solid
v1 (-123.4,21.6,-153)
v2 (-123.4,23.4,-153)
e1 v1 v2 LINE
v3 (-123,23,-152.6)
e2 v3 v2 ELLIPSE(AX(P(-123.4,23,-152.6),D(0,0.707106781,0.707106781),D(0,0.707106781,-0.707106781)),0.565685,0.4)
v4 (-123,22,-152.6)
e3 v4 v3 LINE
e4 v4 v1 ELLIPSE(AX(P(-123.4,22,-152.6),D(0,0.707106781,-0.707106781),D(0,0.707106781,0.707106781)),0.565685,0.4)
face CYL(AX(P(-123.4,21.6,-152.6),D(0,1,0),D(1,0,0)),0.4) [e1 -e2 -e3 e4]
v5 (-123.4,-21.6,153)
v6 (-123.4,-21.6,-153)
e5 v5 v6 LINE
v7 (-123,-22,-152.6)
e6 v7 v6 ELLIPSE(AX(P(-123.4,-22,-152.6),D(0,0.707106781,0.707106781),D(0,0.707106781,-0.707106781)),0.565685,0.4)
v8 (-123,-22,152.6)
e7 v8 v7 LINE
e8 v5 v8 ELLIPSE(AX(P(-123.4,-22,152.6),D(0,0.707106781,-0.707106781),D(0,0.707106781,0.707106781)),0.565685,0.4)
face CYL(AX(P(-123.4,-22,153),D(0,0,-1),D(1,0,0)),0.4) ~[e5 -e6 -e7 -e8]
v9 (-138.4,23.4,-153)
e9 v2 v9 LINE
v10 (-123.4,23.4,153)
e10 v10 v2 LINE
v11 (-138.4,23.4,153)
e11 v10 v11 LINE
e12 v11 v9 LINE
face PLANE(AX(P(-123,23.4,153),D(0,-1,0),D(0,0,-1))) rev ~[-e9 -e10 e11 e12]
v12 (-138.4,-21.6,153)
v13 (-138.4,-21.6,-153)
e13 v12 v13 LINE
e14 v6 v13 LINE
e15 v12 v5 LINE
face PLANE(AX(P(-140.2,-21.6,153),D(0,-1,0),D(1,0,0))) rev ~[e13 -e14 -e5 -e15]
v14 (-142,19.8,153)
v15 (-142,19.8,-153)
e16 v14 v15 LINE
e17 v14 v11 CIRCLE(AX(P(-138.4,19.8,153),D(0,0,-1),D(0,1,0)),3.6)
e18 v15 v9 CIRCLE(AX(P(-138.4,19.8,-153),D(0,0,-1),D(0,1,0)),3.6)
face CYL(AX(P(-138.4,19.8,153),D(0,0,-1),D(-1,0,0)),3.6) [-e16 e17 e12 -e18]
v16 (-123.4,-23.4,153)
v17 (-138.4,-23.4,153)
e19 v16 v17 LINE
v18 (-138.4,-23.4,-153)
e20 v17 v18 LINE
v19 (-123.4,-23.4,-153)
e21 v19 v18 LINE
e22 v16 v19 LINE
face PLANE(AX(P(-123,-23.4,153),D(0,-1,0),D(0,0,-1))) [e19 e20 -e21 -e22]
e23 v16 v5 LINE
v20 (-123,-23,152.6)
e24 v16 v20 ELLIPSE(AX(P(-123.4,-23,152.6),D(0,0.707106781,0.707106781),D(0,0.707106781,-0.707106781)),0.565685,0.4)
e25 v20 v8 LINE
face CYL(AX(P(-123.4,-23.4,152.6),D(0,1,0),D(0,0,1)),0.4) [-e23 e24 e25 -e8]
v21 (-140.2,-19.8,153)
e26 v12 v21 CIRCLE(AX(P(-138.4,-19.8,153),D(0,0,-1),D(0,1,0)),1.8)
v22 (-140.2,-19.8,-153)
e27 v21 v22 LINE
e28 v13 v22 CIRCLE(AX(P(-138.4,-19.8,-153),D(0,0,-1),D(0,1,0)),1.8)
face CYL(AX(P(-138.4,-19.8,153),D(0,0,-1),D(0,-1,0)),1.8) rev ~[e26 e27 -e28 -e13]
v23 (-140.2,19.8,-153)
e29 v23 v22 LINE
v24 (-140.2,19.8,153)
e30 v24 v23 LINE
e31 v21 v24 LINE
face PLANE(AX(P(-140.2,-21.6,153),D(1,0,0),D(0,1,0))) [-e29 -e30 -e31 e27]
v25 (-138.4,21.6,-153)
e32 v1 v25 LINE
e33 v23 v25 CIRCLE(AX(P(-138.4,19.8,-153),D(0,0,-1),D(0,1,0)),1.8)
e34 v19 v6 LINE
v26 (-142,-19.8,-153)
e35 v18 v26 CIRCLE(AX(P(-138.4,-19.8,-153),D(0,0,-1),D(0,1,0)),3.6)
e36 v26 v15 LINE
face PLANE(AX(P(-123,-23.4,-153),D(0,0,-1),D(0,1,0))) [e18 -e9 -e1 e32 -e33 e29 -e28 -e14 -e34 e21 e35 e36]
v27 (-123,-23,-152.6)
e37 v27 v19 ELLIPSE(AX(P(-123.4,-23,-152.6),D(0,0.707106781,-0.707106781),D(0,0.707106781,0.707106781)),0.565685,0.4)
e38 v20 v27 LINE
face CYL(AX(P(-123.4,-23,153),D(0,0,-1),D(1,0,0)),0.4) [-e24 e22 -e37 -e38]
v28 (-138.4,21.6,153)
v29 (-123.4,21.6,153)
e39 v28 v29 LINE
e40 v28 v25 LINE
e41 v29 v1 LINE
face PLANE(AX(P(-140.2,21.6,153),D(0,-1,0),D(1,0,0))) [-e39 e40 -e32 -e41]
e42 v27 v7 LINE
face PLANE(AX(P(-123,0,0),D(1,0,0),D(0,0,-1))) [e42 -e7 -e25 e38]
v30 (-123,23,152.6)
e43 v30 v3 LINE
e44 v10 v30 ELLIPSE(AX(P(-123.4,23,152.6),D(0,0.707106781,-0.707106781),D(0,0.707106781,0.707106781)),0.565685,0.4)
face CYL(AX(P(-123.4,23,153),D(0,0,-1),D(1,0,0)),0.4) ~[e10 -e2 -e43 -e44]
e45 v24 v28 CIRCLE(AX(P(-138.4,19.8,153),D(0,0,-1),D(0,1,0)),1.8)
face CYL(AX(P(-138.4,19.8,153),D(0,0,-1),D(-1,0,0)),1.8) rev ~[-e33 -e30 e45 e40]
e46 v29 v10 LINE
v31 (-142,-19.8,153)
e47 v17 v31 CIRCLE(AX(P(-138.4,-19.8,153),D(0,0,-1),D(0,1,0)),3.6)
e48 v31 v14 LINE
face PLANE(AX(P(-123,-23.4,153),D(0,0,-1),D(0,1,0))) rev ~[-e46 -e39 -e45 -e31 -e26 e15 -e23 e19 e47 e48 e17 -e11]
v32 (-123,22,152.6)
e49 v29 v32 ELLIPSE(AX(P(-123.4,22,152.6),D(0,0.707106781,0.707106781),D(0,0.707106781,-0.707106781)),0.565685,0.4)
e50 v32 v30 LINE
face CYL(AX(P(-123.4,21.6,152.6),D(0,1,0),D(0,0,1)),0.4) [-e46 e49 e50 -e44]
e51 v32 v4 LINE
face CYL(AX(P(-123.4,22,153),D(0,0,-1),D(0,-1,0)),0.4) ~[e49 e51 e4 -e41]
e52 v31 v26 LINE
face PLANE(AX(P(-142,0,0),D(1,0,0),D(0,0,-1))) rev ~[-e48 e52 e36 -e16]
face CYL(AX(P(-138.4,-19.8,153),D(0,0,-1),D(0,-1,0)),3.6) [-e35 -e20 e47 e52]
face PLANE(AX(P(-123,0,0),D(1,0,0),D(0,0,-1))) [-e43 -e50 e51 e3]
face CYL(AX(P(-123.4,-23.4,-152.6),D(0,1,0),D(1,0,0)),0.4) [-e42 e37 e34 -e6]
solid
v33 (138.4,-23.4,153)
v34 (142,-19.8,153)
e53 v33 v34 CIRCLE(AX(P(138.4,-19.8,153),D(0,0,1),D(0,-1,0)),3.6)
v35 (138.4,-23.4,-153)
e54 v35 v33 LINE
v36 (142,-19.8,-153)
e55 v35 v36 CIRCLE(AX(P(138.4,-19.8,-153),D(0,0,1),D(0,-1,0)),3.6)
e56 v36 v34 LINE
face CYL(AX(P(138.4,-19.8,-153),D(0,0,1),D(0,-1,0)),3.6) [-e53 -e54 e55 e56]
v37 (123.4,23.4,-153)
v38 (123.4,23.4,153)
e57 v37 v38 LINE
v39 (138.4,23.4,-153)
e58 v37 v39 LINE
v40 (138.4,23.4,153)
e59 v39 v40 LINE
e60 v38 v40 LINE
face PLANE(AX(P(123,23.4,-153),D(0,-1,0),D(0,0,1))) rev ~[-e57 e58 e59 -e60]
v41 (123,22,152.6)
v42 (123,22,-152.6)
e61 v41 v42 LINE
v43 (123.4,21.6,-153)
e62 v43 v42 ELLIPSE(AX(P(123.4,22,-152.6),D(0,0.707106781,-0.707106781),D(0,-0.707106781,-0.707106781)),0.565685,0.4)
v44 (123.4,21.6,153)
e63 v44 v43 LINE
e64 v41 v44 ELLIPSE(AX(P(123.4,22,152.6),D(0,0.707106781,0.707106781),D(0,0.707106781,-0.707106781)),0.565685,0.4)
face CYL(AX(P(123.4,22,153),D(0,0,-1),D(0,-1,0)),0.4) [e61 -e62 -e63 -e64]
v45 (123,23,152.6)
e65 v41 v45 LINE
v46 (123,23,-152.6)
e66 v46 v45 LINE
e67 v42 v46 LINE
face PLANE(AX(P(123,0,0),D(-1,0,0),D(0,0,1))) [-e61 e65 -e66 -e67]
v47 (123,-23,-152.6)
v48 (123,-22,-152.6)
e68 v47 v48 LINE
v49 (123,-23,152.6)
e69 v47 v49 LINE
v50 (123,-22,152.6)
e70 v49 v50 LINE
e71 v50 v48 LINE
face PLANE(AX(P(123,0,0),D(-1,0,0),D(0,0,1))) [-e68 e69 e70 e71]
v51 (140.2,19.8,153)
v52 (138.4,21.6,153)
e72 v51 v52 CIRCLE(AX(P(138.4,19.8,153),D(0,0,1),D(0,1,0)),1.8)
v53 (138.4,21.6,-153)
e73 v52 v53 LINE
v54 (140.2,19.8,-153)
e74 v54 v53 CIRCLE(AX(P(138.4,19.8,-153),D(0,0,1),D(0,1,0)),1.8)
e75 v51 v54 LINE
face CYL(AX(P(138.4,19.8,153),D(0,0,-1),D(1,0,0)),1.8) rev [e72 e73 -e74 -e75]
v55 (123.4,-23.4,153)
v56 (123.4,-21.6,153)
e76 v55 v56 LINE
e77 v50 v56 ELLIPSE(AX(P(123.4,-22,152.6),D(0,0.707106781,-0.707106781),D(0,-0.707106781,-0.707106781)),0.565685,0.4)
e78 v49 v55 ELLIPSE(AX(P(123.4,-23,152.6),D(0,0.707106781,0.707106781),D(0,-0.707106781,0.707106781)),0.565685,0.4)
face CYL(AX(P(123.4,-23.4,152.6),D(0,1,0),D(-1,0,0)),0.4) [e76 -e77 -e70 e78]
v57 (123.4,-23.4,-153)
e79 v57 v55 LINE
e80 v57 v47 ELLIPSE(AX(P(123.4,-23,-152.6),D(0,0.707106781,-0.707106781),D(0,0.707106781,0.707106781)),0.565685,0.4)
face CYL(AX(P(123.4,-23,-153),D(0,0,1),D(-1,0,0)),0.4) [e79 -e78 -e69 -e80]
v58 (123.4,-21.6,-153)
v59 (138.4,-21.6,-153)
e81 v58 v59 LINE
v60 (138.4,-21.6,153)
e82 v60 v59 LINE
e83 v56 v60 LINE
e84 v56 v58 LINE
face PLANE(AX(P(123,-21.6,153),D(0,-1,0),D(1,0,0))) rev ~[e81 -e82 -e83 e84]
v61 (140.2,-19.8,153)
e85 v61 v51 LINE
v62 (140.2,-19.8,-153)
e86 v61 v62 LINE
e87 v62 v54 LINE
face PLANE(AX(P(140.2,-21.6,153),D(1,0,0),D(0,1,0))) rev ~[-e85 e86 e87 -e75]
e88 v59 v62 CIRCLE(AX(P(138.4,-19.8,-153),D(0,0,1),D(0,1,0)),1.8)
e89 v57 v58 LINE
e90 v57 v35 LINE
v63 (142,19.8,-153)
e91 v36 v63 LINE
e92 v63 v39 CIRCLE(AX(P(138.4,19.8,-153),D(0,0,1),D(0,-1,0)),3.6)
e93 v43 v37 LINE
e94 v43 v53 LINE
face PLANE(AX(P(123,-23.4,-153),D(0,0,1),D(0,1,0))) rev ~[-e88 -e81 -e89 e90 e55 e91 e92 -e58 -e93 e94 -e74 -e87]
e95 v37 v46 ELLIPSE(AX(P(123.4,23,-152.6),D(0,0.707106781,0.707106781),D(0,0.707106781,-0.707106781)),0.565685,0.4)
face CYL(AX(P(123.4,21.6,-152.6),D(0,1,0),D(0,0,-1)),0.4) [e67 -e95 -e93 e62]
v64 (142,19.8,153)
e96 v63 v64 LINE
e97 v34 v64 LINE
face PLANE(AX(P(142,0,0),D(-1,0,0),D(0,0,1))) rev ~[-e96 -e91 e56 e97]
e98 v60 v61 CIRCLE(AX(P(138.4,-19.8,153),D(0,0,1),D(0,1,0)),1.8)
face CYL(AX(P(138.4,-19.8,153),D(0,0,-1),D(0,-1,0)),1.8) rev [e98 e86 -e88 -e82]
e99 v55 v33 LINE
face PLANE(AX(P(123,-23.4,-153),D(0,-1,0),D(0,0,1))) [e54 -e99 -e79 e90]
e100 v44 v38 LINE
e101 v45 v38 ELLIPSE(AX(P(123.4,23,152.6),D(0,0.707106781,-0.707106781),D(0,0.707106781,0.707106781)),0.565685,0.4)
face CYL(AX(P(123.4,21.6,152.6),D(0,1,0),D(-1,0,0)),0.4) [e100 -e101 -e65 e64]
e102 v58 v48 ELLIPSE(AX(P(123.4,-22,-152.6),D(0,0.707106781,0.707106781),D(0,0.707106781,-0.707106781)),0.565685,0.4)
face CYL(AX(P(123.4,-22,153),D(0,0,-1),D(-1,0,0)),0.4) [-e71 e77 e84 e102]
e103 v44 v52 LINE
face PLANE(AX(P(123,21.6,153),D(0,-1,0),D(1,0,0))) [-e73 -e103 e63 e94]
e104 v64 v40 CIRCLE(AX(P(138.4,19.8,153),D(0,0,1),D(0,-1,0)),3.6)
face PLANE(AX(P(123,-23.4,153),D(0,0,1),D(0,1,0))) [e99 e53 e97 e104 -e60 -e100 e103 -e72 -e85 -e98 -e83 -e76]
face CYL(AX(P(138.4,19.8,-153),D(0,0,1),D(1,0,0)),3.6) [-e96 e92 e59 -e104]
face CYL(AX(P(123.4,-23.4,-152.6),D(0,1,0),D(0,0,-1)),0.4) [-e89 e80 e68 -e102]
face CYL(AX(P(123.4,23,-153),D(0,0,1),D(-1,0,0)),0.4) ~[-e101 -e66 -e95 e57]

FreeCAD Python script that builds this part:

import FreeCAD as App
import Part
import Sketcher

V = App.Vector
Q = App.Units.Quantity


def edges_at(feature, points):
    """Names of the edges that pass closest to the given points."""
    edges = feature.Shape.Edges
    near = lambda p: min(range(len(edges)), key=lambda i: edges[i].distToShape(Part.Vertex(*p))[0])
    return sorted({f"Edge{near(p) + 1}" for p in points})

doc = App.newDocument("Part")
params = doc.addObject("Spreadsheet::Sheet", "Params")
for row, (alias, value) in enumerate([
    ("sketch1_height", "306 mm"),
    ("sketch1_width", "46.8 mm"),
    ("pad1_length", "19 mm"),
    ("sketch2_width", "17.2 mm"),
    ("sketch2_height", "43.2 mm"),
    ("fillet_radius", "0.4 mm"),
    ("fillet2_radius", "1.8 mm"),
    ("fillet3_radius", "3.6 mm"),
    ("sketch3_height", "306 mm"),
    ("sketch3_width", "46.8 mm"),
    ("pad2_length", "19 mm"),
    ("sketch4_width", "17.2 mm"),
    ("sketch4_height", "43.2 mm"),
    ("fillet4_radius", "0.4 mm"),
    ("fillet5_radius", "1.8 mm"),
    ("fillet6_radius", "3.6 mm"),
], start=1):
    params.set(f"A{row}", alias)
    params.set(f"B{row}", "=" + value)
    params.setAlias(f"B{row}", alias)

body = doc.addObject("PartDesign::Body", "Body")

# Sketch on YZ plane
sketch1 = body.newObject("Sketcher::SketchObject", "Sketch")
sketch1.AttachmentSupport = (doc.getObject("YZ_Plane"), [""])
sketch1.MapMode = "FlatFace"
sketch1.AttachmentOffset = App.Placement(V(0, 0, 123), App.Rotation())
sketch1.addGeometry(Part.LineSegment(V(23, -153, 0), V(-23, -153, 0)), False)
sketch1.addGeometry(Part.LineSegment(V(-23, -153, 0), V(-23, 153, 0)), False)
sketch1.addGeometry(Part.LineSegment(V(-23, 153, 0), V(23, 153, 0)), False)
sketch1.addGeometry(Part.LineSegment(V(23, 153, 0), V(23, -153, 0)), False)
sketch1.addConstraint(Sketcher.Constraint("Coincident", 0, 2, 1, 1))
sketch1.addConstraint(Sketcher.Constraint("Coincident", 1, 2, 2, 1))
sketch1.addConstraint(Sketcher.Constraint("Coincident", 2, 2, 3, 1))
sketch1.addConstraint(Sketcher.Constraint("Coincident", 3, 2, 0, 1))
sketch1.addConstraint(Sketcher.Constraint("Horizontal", 0))
sketch1.addConstraint(Sketcher.Constraint("Vertical", 1))
sketch1.addConstraint(Sketcher.Constraint("Horizontal", 2))
sketch1.addConstraint(Sketcher.Constraint("Vertical", 3))
sketch1.addConstraint(Sketcher.Constraint("Symmetric", 0, 2, 2, 2, -1, 1))
sketch1.addConstraint(Sketcher.Constraint("DistanceY", 1, 1, 1, 2, Q("306 mm")))
sketch1.addConstraint(Sketcher.Constraint("DistanceX", 0, 2, 0, 1, Q("46.8 mm")))
sketch1.setExpression("Constraints[9]", "Params.sketch1_height")
sketch1.setExpression("Constraints[10]", "Params.sketch1_width")
pad1 = body.newObject("PartDesign::Pad", "Pad")
pad1.Profile = sketch1
pad1.setExpression("Length", "Params.pad1_length")

# Sketch on XY plane
sketch2 = body.newObject("Sketcher::SketchObject", "Sketch001")
sketch2.AttachmentSupport = (doc.getObject("XY_Plane"), [""])
sketch2.MapMode = "FlatFace"
sketch2.AttachmentOffset = App.Placement(V(0, 0, 153), App.Rotation())
sketch2.addGeometry(Part.LineSegment(V(123, 22, 0), V(123, -22, 0)), False)
sketch2.addGeometry(Part.LineSegment(V(123, -22, 0), V(140, -22, 0)), False)
sketch2.addGeometry(Part.LineSegment(V(140, -22, 0), V(140, 22, 0)), False)
sketch2.addGeometry(Part.LineSegment(V(140, 22, 0), V(123, 22, 0)), False)
sketch2.addConstraint(Sketcher.Constraint("Coincident", 0, 2, 1, 1))
sketch2.addConstraint(Sketcher.Constraint("Coincident", 1, 2, 2, 1))
sketch2.addConstraint(Sketcher.Constraint("Coincident", 2, 2, 3, 1))
sketch2.addConstraint(Sketcher.Constraint("Coincident", 3, 2, 0, 1))
sketch2.addConstraint(Sketcher.Constraint("Vertical", 0))
sketch2.addConstraint(Sketcher.Constraint("Horizontal", 1))
sketch2.addConstraint(Sketcher.Constraint("Vertical", 2))
sketch2.addConstraint(Sketcher.Constraint("Horizontal", 3))
sketch2.addConstraint(Sketcher.Constraint("DistanceX", 1, 1, 1, 2, Q("17.2 mm")))
sketch2.addConstraint(Sketcher.Constraint("DistanceY", 0, 2, 0, 1, Q("43.2 mm")))
sketch2.addConstraint(Sketcher.Constraint("DistanceX", -1, 1, 0, 2, Q("123 mm")))
sketch2.addConstraint(Sketcher.Constraint("DistanceY", 0, 2, -1, 1, Q("21.6 mm")))
sketch2.setExpression("Constraints[8]", "Params.sketch2_width")
sketch2.setExpression("Constraints[9]", "Params.sketch2_height")
pocket1 = body.newObject("PartDesign::Pocket", "Pocket")
pocket1.Profile = sketch2
pocket1.Type = "ThroughAll"
doc.recompute()

fillet = body.newObject("PartDesign::Fillet", "Fillet")
fillet.Base = (pocket1, edges_at(pocket1, [
    (123, 22.5, 153),
    (123, -22.5, -153),
    (123, -21.6, 0),
    (123, 21.6, 0),
    (123, -23.4, 0),
    (123, 22.5, -153),
    (123, 23.4, 0),
    (123, -22.5, 153),
]))
fillet.setExpression("Radius", "Params.fillet_radius")
doc.recompute()

fillet2 = body.newObject("PartDesign::Fillet", "Fillet001")
fillet2.Base = (fillet, edges_at(fillet, [(140.2, 21.6, 0), (140.2, -21.6, 0)]))
fillet2.setExpression("Radius", "Params.fillet2_radius")
doc.recompute()

fillet3 = body.newObject("PartDesign::Fillet", "Fillet002")
fillet3.Base = (fillet2, edges_at(fillet2, [(142, -23.4, 0), (142, 23.4, 0)]))
fillet3.setExpression("Radius", "Params.fillet3_radius")
body2 = doc.addObject("PartDesign::Body", "Body001")

# Sketch on YZ plane
sketch3 = body2.newObject("Sketcher::SketchObject", "Sketch002")
sketch3.AttachmentSupport = (doc.getObject("YZ_Plane001"), [""])
sketch3.MapMode = "FlatFace"
sketch3.AttachmentOffset = App.Placement(V(0, 0, -123), App.Rotation())
sketch3.addGeometry(Part.LineSegment(V(23, 153, 0), V(-23, 153, 0)), False)
sketch3.addGeometry(Part.LineSegment(V(-23, 153, 0), V(-23, -153, 0)), False)
sketch3.addGeometry(Part.LineSegment(V(-23, -153, 0), V(23, -153, 0)), False)
sketch3.addGeometry(Part.LineSegment(V(23, -153, 0), V(23, 153, 0)), False)
sketch3.addConstraint(Sketcher.Constraint("Coincident", 0, 2, 1, 1))
sketch3.addConstraint(Sketcher.Constraint("Coincident", 1, 2, 2, 1))
sketch3.addConstraint(Sketcher.Constraint("Coincident", 2, 2, 3, 1))
sketch3.addConstraint(Sketcher.Constraint("Coincident", 3, 2, 0, 1))
sketch3.addConstraint(Sketcher.Constraint("Horizontal", 0))
sketch3.addConstraint(Sketcher.Constraint("Vertical", 1))
sketch3.addConstraint(Sketcher.Constraint("Horizontal", 2))
sketch3.addConstraint(Sketcher.Constraint("Vertical", 3))
sketch3.addConstraint(Sketcher.Constraint("Symmetric", 0, 2, 2, 2, -1, 1))
sketch3.addConstraint(Sketcher.Constraint("DistanceY", 1, 2, 1, 1, Q("306 mm")))
sketch3.addConstraint(Sketcher.Constraint("DistanceX", 0, 2, 0, 1, Q("46.8 mm")))
sketch3.setExpression("Constraints[9]", "Params.sketch3_height")
sketch3.setExpression("Constraints[10]", "Params.sketch3_width")
pad2 = body2.newObject("PartDesign::Pad", "Pad001")
pad2.Profile = sketch3
pad2.setExpression("Length", "Params.pad2_length")
pad2.Reversed = True

# Sketch on XY plane
sketch4 = body2.newObject("Sketcher::SketchObject", "Sketch003")
sketch4.AttachmentSupport = (doc.getObject("XY_Plane001"), [""])
sketch4.MapMode = "FlatFace"
sketch4.AttachmentOffset = App.Placement(V(0, 0, 153), App.Rotation())
sketch4.addGeometry(Part.LineSegment(V(-140, 22, 0), V(-140, -22, 0)), False)
sketch4.addGeometry(Part.LineSegment(V(-140, -22, 0), V(-123, -22, 0)), False)
sketch4.addGeometry(Part.LineSegment(V(-123, -22, 0), V(-123, 22, 0)), False)
sketch4.addGeometry(Part.LineSegment(V(-123, 22, 0), V(-140, 22, 0)), False)
sketch4.addConstraint(Sketcher.Constraint("Coincident", 0, 2, 1, 1))
sketch4.addConstraint(Sketcher.Constraint("Coincident", 1, 2, 2, 1))
sketch4.addConstraint(Sketcher.Constraint("Coincident", 2, 2, 3, 1))
sketch4.addConstraint(Sketcher.Constraint("Coincident", 3, 2, 0, 1))
sketch4.addConstraint(Sketcher.Constraint("Vertical", 0))
sketch4.addConstraint(Sketcher.Constraint("Horizontal", 1))
sketch4.addConstraint(Sketcher.Constraint("Vertical", 2))
sketch4.addConstraint(Sketcher.Constraint("Horizontal", 3))
sketch4.addConstraint(Sketcher.Constraint("DistanceX", 1, 1, 1, 2, Q("17.2 mm")))
sketch4.addConstraint(Sketcher.Constraint("DistanceY", 0, 2, 0, 1, Q("43.2 mm")))
sketch4.addConstraint(Sketcher.Constraint("DistanceX", 1, 2, -1, 1, Q("123 mm")))
sketch4.addConstraint(Sketcher.Constraint("DistanceY", 0, 2, -1, 1, Q("21.6 mm")))
sketch4.setExpression("Constraints[8]", "Params.sketch4_width")
sketch4.setExpression("Constraints[9]", "Params.sketch4_height")
pocket2 = body2.newObject("PartDesign::Pocket", "Pocket001")
pocket2.Profile = sketch4
pocket2.Type = "ThroughAll"
doc.recompute()

fillet4 = body2.newObject("PartDesign::Fillet", "Fillet003")
fillet4.Base = (pocket2, edges_at(pocket2, [
    (-123, -22.5, 153),
    (-123, 22.5, -153),
    (-123, -21.6, 0),
    (-123, 21.6, 0),
    (-123, -22.5, -153),
    (-123, -23.4, 0),
    (-123, 22.5, 153),
    (-123, 23.4, 0),
]))
fillet4.setExpression("Radius", "Params.fillet4_radius")
doc.recompute()

fillet5 = body2.newObject("PartDesign::Fillet", "Fillet004")
fillet5.Base = (fillet4, edges_at(fillet4, [(-140.2, -21.6, 0), (-140.2, 21.6, 0)]))
fillet5.setExpression("Radius", "Params.fillet5_radius")
doc.recompute()

fillet6 = body2.newObject("PartDesign::Fillet", "Fillet005")
fillet6.Base = (fillet5, edges_at(fillet5, [(-142, -23.4, 0), (-142, 23.4, 0)]))
fillet6.setExpression("Radius", "Params.fillet6_radius")

doc.recompute()
